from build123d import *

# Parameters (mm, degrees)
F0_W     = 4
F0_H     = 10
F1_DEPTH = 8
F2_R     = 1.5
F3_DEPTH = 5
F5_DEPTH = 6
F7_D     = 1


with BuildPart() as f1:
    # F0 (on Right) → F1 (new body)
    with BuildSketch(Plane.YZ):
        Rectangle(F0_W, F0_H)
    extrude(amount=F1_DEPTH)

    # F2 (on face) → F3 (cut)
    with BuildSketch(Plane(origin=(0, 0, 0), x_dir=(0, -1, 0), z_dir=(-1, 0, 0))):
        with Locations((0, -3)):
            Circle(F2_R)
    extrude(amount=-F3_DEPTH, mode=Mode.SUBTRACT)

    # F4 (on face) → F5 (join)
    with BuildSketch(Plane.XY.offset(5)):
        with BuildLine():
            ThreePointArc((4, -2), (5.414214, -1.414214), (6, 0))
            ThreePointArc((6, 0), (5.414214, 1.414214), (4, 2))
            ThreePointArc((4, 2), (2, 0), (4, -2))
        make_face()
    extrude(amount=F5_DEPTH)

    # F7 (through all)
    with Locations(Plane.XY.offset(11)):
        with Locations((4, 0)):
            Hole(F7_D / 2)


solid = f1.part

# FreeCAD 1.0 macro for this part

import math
import FreeCAD as App
import Part
import Sketcher


def add_polygon(sketch, points):
    """Adds a closed chain of lines whose ends are joined by coincident constraints."""
    first, n = sketch.GeometryCount, len(points)
    for a, b in zip(points, points[1:] + points[:1]):
        sketch.addGeometry(Part.LineSegment(App.Vector(*a, 0), App.Vector(*b, 0)), False)
    for i in range(n):
        sketch.addConstraint(Sketcher.Constraint("Coincident", first + i, 2, first + (i + 1) % n, 1))

doc = App.newDocument("Part")
body = doc.addObject("PartDesign::Body", "Body")

sketch1 = body.newObject("Sketcher::SketchObject", "Sketch")
sketch1.AttachmentSupport = (doc.getObject("YZ_Plane"), [""])
sketch1.MapMode = "FlatFace"
add_polygon(sketch1, [(-2, 5), (-2, -5), (2, -5), (2, 5)])
sketch1.addConstraint([
    Sketcher.Constraint("Vertical", 0),
    Sketcher.Constraint("Horizontal", 1),
    Sketcher.Constraint("Vertical", 2),
    Sketcher.Constraint("Horizontal", 3),
    Sketcher.Constraint("Symmetric", 0, 2, 2, 2, -1, 1),
    Sketcher.Constraint("DistanceX", 1, 1, 1, 2, 4.0),
    Sketcher.Constraint("DistanceY", 0, 2, 0, 1, 10.0),
])
pad1 = body.newObject("PartDesign::Pad", "Pad")
pad1.Profile = sketch1
pad1.Length = 8

sketch2 = body.newObject("Sketcher::SketchObject", "Sketch001")
sketch2.AttachmentSupport = (doc.getObject("YZ_Plane"), [""])
sketch2.MapMode = "FlatFace"
sketch2.addGeometry(Part.Circle(App.Vector(0, -3, 0), App.Vector(0, 0, 1), 1.5), False)
sketch2.addConstraint([
    Sketcher.Constraint("PointOnObject", 0, 3, -2),
    Sketcher.Constraint("Diameter", 0, 3.0),
    Sketcher.Constraint("DistanceY", 0, 3, -1, 1, 3.0),
])
pocket1 = body.newObject("PartDesign::Pocket", "Pocket")
pocket1.Profile = sketch2
pocket1.Length = 5
pocket1.Reversed = True

sketch3 = body.newObject("Sketcher::SketchObject", "Sketch002")
sketch3.AttachmentSupport = (doc.getObject("XY_Plane"), [""])
sketch3.MapMode = "FlatFace"
sketch3.AttachmentOffset = App.Placement(App.Vector(0, 0, 5), App.Rotation())
sketch3.addGeometry([
    Part.ArcOfCircle(Part.Circle(App.Vector(4.000001, -0.000001, 0), App.Vector(0, 0, 1), 1.999999), math.radians(-90.000043), math.radians(0.000043)),
    Part.ArcOfCircle(Part.Circle(App.Vector(4.000001, 0.000001, 0), App.Vector(0, 0, 1), 1.999999), math.radians(-0.000043), math.radians(90.000043)),
    Part.ArcOfCircle(Part.Circle(App.Vector(4, 0, 0), App.Vector(0, 0, 1), 2), math.radians(90), math.radians(270)),
], False)
sketch3.addConstraint([
    Sketcher.Constraint("Tangent", 0, 2, 1, 1),
    Sketcher.Constraint("Tangent", 1, 2, 2, 1),
    Sketcher.Constraint("Tangent", 2, 2, 0, 1),
    Sketcher.Constraint("Symmetric", 1, 2, 2, 2, -1),
    Sketcher.Constraint("PointOnObject", 0, 2, -1),
    Sketcher.Constraint("Vertical", 2, 3, 1, 2),
    Sketcher.Constraint("Radius", 0, 1.999999),
    Sketcher.Constraint("DistanceX", -1, 1, 0, 3, 4.000001),
])
pad2 = body.newObject("PartDesign::Pad", "Pad001")
pad2.Profile = sketch3
pad2.Length = 6

sketch4 = body.newObject("Sketcher::SketchObject", "Sketch003")
sketch4.AttachmentSupport = (doc.getObject("XY_Plane"), [""])
sketch4.MapMode = "FlatFace"
sketch4.AttachmentOffset = App.Placement(App.Vector(0, 0, 11), App.Rotation())
sketch4.addGeometry(Part.Circle(App.Vector(4, 0, 0), App.Vector(0, 0, 1), 0.5), False)
sketch4.addConstraint([
    Sketcher.Constraint("PointOnObject", 0, 3, -1),
    Sketcher.Constraint("Diameter", 0, 1.0),
    Sketcher.Constraint("DistanceX", -1, 1, 0, 3, 4.0),
])
doc.recompute()
hole = body.newObject("PartDesign::Hole", "Hole")
hole.Profile = sketch4
hole.ThreadType = "None"
hole.Diameter = 1
hole.DepthType = "ThroughAll"

doc.recompute()
